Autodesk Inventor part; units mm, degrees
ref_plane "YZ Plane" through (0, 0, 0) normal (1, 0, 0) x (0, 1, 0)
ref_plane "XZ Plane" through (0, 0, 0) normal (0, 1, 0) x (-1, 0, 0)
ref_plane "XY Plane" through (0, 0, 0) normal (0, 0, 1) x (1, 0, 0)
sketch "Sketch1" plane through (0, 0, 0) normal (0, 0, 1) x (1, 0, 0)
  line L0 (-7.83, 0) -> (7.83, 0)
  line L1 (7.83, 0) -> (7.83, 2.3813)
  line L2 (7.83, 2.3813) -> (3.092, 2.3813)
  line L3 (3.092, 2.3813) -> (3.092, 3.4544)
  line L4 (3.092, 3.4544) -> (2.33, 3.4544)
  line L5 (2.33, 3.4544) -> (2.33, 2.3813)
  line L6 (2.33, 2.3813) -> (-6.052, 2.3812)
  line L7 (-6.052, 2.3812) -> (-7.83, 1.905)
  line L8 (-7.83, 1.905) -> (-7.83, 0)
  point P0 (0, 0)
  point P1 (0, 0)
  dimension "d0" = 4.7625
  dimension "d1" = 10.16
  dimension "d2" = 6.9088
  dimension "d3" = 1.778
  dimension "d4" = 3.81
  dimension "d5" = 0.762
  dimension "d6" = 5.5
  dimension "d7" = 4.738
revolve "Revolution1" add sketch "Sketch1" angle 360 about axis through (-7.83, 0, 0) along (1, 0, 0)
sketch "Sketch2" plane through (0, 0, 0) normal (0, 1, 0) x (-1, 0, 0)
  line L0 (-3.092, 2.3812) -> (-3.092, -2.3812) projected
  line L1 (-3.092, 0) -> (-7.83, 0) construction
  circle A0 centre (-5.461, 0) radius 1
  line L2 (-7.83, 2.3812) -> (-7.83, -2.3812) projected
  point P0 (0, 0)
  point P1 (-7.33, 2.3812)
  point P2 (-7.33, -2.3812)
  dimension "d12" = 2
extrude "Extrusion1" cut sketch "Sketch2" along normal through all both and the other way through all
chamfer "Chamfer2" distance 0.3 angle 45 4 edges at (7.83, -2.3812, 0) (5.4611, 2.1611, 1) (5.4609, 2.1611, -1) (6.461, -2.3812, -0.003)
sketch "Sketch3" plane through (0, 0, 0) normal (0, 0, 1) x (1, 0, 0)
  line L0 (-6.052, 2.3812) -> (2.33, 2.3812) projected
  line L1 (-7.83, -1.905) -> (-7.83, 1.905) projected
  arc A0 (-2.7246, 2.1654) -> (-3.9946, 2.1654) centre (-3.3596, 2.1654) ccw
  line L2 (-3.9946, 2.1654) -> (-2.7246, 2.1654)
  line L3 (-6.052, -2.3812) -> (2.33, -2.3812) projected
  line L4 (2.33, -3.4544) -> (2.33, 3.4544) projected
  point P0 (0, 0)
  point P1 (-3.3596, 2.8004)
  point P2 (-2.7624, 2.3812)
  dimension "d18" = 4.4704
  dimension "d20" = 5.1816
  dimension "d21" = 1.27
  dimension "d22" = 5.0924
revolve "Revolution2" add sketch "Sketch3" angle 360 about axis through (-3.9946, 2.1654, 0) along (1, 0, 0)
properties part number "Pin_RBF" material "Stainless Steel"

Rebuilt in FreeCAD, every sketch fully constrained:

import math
import FreeCAD as App
import Part
import Sketcher
Q = App.Units.Quantity


def edges_at(feature, points):
    """Names of the edges that pass closest to the given points."""
    edges = feature.Shape.Edges
    near = lambda p: min(range(len(edges)), key=lambda i: edges[i].distToShape(Part.Vertex(*p))[0])
    return sorted({f"Edge{near(p) + 1}" for p in points})

doc = App.newDocument("Part")
body = doc.addObject("PartDesign::Body", "Body")

sketch1 = doc.addObject("Sketcher::SketchObject", "Sketch")
body.addObject(sketch1)
sketch1.AttachmentSupport = (doc.XY_Plane, [""])
sketch1.MapMode = "FlatFace"
sketch1.addGeometry([
    Part.LineSegment(App.Vector(-7.8, 1.9, 0), App.Vector(-7.8, 0, 0)),
    Part.LineSegment(App.Vector(-7.8, 0, 0), App.Vector(7.8, 0, 0)),
    Part.LineSegment(App.Vector(7.8, 0, 0), App.Vector(7.8, 2.4, 0)),
    Part.LineSegment(App.Vector(7.8, 2.4, 0), App.Vector(3.1, 2.4, 0)),
    Part.LineSegment(App.Vector(3.1, 2.4, 0), App.Vector(3.1, 3.5, 0)),
    Part.LineSegment(App.Vector(3.1, 3.5, 0), App.Vector(2.3, 3.5, 0)),
    Part.LineSegment(App.Vector(2.3, 3.5, 0), App.Vector(2.3, 2.4, 0)),
    Part.LineSegment(App.Vector(2.3, 2.4, 0), App.Vector(-6.1, 2.4, 0)),
    Part.LineSegment(App.Vector(-6.1, 2.4, 0), App.Vector(-7.8, 1.9, 0)),
], False)
sketch1.addConstraint([
    Sketcher.Constraint("Coincident", 0, 2, 1, 1),
    Sketcher.Constraint("Coincident", 1, 2, 2, 1),
    Sketcher.Constraint("Coincident", 2, 2, 3, 1),
    Sketcher.Constraint("Coincident", 3, 2, 4, 1),
    Sketcher.Constraint("Coincident", 4, 2, 5, 1),
    Sketcher.Constraint("Coincident", 5, 2, 6, 1),
    Sketcher.Constraint("Coincident", 6, 2, 7, 1),
    Sketcher.Constraint("Coincident", 7, 2, 8, 1),
    Sketcher.Constraint("Coincident", 8, 2, 0, 1),
    Sketcher.Constraint("Vertical", 0),
    Sketcher.Constraint("Horizontal", 1),
    Sketcher.Constraint("Vertical", 2),
    Sketcher.Constraint("Horizontal", 3),
    Sketcher.Constraint("Vertical", 4),
    Sketcher.Constraint("Horizontal", 5),
    Sketcher.Constraint("Vertical", 6),
    Sketcher.Constraint("Horizontal", 7),
    Sketcher.Constraint("Symmetric", 0, 2, 1, 2, -1, 1),
    Sketcher.Constraint("Horizontal", 3, 2, 6, 2),
    Sketcher.Constraint("DistanceX", 5, 2, 5, 1, Q("0.03 in")),
    Sketcher.Constraint("DistanceX", 0, 2, 5, 2, Q("0.4 in")),
    Sketcher.Constraint("DistanceX", 0, 2, 7, 2, Q("0.07 in")),
    Sketcher.Constraint("DistanceX", 3, 2, 3, 1, 4.738),
    Sketcher.Constraint("DistanceY", 0, 2, 0, 1, Q("0.075 in")),
    Sketcher.Constraint("DistanceY", 2, 1, 2, 2, Q("0.093752 in")),
    Sketcher.Constraint("DistanceY", -1, 1, 4, 2, Q("0.136 in")),
])
revolution = doc.addObject("PartDesign::Revolution", "Revolution")
body.addObject(revolution)
revolution.Profile = sketch1
revolution.ReferenceAxis = (sketch1, ["H_Axis"])
revolution.Angle = 360

sketch2 = doc.addObject("Sketcher::SketchObject", "Sketch001")
body.addObject(sketch2)
sketch2.AttachmentSupport = (doc.XZ_Plane, [""])
sketch2.MapMode = "FlatFace"
sketch2.addGeometry(Part.Circle(App.Vector(5.5, 0, 0), App.Vector(0, 0, 1), 1), False)
sketch2.addConstraint([
    Sketcher.Constraint("PointOnObject", 0, 3, -1),
    Sketcher.Constraint("Diameter", 0, 2.0),
    Sketcher.Constraint("DistanceX", -1, 1, 0, 3, Q("0.215 in")),
])
pocket1 = doc.addObject("PartDesign::Pocket", "Pocket")
body.addObject(pocket1)
pocket1.Profile = sketch2
pocket1.Type = "ThroughAll"
pocket1.Midplane = True
doc.recompute()

chamfer = doc.addObject("PartDesign::Chamfer", "Chamfer")
body.addObject(chamfer)
chamfer.Base = (pocket1, edges_at(pocket1, [
    (7.83, -2.381, 0),
    (5.461, 2.161, 1),
    (5.461, 2.161, -1),
    (6.461, -2.381, -0.003),
]))
chamfer.Size = Q("0.011811 in")

sketch3 = doc.addObject("Sketcher::SketchObject", "Sketch002")
body.addObject(sketch3)
sketch3.AttachmentSupport = (doc.XY_Plane, [""])
sketch3.MapMode = "FlatFace"
sketch3.addGeometry([
    Part.LineSegment(App.Vector(-4, 2.2, 0), App.Vector(-2.7, 2.2, 0)),
    Part.ArcOfCircle(Part.Circle(App.Vector(-3.4, 2.2, 0), App.Vector(0, 0, 1), 0.6), math.radians(0), math.radians(180)),
], False)
sketch3.addGeometry(Part.LineSegment(App.Vector(-4, 2.2, 0), App.Vector(-2.7, 2.2, 0)), True)
sketch3.addConstraint([
    Sketcher.Constraint("Coincident", 0, 1, 1, 2),
    Sketcher.Constraint("Coincident", 1, 1, 0, 2),
    Sketcher.Constraint("Horizontal", 0),
    Sketcher.Constraint("Horizontal", 2),
    Sketcher.Constraint("Coincident", 2, 1, 0, 1),
    Sketcher.Constraint("Horizontal", 1, 3, 0, 1),
    Sketcher.Constraint("Equal", 0, 2),
    Sketcher.Constraint("Radius", 1, Q("0.025 in")),
    Sketcher.Constraint("DistanceX", 1, 3, -1, 1, 3.3596),
    Sketcher.Constraint("DistanceY", -1, 1, 1, 3, 2.1654),
])
revolution2 = doc.addObject("PartDesign::Revolution", "Revolution001")
body.addObject(revolution2)
revolution2.Profile = sketch3
revolution2.ReferenceAxis = (sketch3, ["Axis0"])
revolution2.Angle = 360

doc.recompute()
